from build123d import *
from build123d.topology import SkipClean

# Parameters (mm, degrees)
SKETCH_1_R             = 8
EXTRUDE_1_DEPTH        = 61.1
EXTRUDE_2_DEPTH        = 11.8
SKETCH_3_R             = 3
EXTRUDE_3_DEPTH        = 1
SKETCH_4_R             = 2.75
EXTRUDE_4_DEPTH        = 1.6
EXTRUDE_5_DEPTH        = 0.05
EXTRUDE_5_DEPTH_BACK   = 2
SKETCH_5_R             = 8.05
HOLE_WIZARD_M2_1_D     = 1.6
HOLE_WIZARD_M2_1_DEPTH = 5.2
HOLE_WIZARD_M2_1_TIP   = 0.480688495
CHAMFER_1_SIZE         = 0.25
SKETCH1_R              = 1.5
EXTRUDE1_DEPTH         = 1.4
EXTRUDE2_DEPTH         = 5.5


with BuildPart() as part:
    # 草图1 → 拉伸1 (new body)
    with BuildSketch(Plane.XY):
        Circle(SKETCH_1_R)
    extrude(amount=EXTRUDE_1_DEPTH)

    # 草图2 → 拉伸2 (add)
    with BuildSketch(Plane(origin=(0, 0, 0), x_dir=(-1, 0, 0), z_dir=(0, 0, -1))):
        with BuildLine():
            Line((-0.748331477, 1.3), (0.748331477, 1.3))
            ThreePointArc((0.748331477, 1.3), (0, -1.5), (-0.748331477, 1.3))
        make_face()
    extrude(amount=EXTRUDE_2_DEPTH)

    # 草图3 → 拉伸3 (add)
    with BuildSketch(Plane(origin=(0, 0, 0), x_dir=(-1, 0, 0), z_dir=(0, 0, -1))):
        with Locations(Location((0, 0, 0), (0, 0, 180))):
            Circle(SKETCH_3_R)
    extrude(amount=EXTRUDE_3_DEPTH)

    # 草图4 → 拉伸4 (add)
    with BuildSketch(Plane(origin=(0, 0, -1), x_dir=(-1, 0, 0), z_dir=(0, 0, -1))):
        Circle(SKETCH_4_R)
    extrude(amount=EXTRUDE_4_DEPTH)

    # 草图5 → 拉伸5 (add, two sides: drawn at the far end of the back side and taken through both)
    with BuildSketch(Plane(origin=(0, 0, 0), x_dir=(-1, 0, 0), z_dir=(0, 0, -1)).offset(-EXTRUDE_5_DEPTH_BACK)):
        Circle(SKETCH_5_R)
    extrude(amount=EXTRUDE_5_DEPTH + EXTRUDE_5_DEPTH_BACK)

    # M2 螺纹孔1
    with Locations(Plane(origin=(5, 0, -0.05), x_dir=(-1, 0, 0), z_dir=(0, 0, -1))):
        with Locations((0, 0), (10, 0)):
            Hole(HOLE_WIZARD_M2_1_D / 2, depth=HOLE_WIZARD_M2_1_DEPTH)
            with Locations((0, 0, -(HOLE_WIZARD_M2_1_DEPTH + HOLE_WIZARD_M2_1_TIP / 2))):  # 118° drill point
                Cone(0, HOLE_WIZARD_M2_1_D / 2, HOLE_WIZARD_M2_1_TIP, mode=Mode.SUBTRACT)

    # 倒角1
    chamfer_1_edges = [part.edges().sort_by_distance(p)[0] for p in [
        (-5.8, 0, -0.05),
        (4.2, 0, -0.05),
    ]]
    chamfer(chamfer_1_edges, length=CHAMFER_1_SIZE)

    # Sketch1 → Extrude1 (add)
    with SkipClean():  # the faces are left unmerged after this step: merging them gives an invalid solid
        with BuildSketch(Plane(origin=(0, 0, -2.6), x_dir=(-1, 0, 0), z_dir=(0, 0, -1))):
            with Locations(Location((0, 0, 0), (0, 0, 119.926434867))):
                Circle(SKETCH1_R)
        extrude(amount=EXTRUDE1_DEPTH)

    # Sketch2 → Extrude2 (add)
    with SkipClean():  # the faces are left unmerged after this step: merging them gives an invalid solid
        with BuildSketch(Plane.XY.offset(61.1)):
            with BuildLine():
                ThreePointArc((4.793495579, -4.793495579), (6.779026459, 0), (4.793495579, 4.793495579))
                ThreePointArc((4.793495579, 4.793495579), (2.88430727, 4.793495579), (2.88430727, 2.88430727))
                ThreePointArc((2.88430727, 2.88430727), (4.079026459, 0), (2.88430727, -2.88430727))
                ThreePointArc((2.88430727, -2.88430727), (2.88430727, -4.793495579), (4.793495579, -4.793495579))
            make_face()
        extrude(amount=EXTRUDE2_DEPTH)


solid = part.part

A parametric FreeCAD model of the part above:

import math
import FreeCAD as App
import Part
import Sketcher
from FreeCAD import Vector
Q = App.Units.Quantity


def edges_at(feature, points):
    """Names of the edges that pass closest to the given points."""
    edges = feature.Shape.Edges
    near = lambda p: min(range(len(edges)), key=lambda i: edges[i].distToShape(Part.Vertex(*p))[0])
    return sorted({f"Edge{near(p) + 1}" for p in points})

doc = App.newDocument("Part")
body = doc.addObject("PartDesign::Body", "Body")

# Sketch on XY plane
sketch1 = body.newObject("Sketcher::SketchObject", "Sketch")
sketch1.AttachmentSupport = (doc.getObject("XY_Plane"), [""])
sketch1.MapMode = "FlatFace"
sketch1.addGeometry(Part.Circle(Vector(0, 0, 0), Vector(0, 0, 1), 8), False)
sketch1.addConstraint([
    Sketcher.Constraint("Coincident", 0, 3, -1, 1),
    Sketcher.Constraint("Diameter", 0, Q("16 mm")),
])
pad1 = body.newObject("PartDesign::Pad", "Pad")
pad1.Profile = sketch1
pad1.Length = 61.1

# Sketch on XY plane
sketch2 = body.newObject("Sketcher::SketchObject", "Sketch001")
sketch2.AttachmentSupport = (doc.getObject("XY_Plane"), [""])
sketch2.MapMode = "FlatFace"
sketch2.addGeometry([
    Part.LineSegment(Vector(-0.7, 1.3, 0), Vector(0.7, 1.3, 0)),
    Part.ArcOfCircle(Part.Circle(Vector(0, 0, 0), Vector(0, 0, 1), 1.5), math.radians(120), math.radians(420)),
], False)
sketch2.addConstraint([
    Sketcher.Constraint("Coincident", 0, 1, 1, 1),
    Sketcher.Constraint("Coincident", 1, 2, 0, 2),
    Sketcher.Constraint("Horizontal", 0),
    Sketcher.Constraint("Coincident", 1, 3, -1, 1),
    Sketcher.Constraint("Radius", 1, Q("1.5 mm")),
    Sketcher.Constraint("DistanceY", -1, 1, 0, 1, Q("1.3 mm")),
])
pad2 = body.newObject("PartDesign::Pad", "Pad001")
pad2.Profile = sketch2
pad2.Length = 11.8
pad2.Reversed = True

# Sketch on XY plane
sketch3 = body.newObject("Sketcher::SketchObject", "Sketch002")
sketch3.AttachmentSupport = (doc.getObject("XY_Plane"), [""])
sketch3.MapMode = "FlatFace"
sketch3.addGeometry(Part.Circle(Vector(0, 0, 0), Vector(0, 0, 1), 3), False)
sketch3.addConstraint([
    Sketcher.Constraint("Coincident", 0, 3, -1, 1),
    Sketcher.Constraint("Diameter", 0, Q("6 mm")),
])
pad3 = body.newObject("PartDesign::Pad", "Pad002")
pad3.Profile = sketch3
pad3.Length = 1
pad3.Reversed = True

# Sketch on XY plane
sketch4 = body.newObject("Sketcher::SketchObject", "Sketch003")
sketch4.AttachmentSupport = (doc.getObject("XY_Plane"), [""])
sketch4.MapMode = "FlatFace"
sketch4.AttachmentOffset = App.Placement(Vector(0, 0, -1), App.Rotation())
sketch4.addGeometry(Part.Circle(Vector(0, 0, 0), Vector(0, 0, 1), 2.8), False)
sketch4.addConstraint([
    Sketcher.Constraint("Coincident", 0, 3, -1, 1),
    Sketcher.Constraint("Diameter", 0, Q("5.5 mm")),
])
pad4 = body.newObject("PartDesign::Pad", "Pad003")
pad4.Profile = sketch4
pad4.Length = 1.6
pad4.Reversed = True

# Sketch on XY plane
sketch5 = body.newObject("Sketcher::SketchObject", "Sketch004")
sketch5.AttachmentSupport = (doc.getObject("XY_Plane"), [""])
sketch5.MapMode = "FlatFace"
sketch5.addGeometry(Part.Circle(Vector(0, 0, 0), Vector(0, 0, 1), 8), False)
sketch5.addConstraint([
    Sketcher.Constraint("Coincident", 0, 3, -1, 1),
    Sketcher.Constraint("Diameter", 0, Q("16.1 mm")),
])
pad5 = body.newObject("PartDesign::Pad", "Pad004")
pad5.Profile = sketch5
pad5.Type = "TwoLengths"
pad5.Length = 0.05
pad5.Length2 = 2
pad5.Reversed = True

# Sketch on XY plane
sketch6 = body.newObject("Sketcher::SketchObject", "Sketch005")
sketch6.AttachmentSupport = (doc.getObject("XY_Plane"), [""])
sketch6.MapMode = "FlatFace"
sketch6.AttachmentOffset = App.Placement(Vector(0, 0, -0.05), App.Rotation())
sketch6.addGeometry([
    Part.Circle(Vector(5, 0, 0), Vector(0, 0, 1), 0.8),
    Part.Circle(Vector(-5, 0, 0), Vector(0, 0, 1), 0.8),
], False)
sketch6.addConstraint([
    Sketcher.Constraint("Equal", 0, 1),
    Sketcher.Constraint("Symmetric", 0, 3, 1, 3, -1, 1),
    Sketcher.Constraint("PointOnObject", 0, 3, -1),
    Sketcher.Constraint("Diameter", 0, Q("1.6 mm")),
    Sketcher.Constraint("DistanceX", -1, 1, 0, 3, Q("5 mm")),
])
doc.recompute()
hole = body.newObject("PartDesign::Hole", "Hole")
hole.Profile = sketch6
hole.ThreadType = "None"
hole.Diameter = 1.6
hole.DepthType = "Dimension"
hole.Depth = 5.2
hole.DrillPoint = "Angled"
hole.DrillPointAngle = 118
hole.Reversed = True
doc.recompute()

chamfer = body.newObject("PartDesign::Chamfer", "Chamfer")
chamfer.Base = (hole, edges_at(hole, [(-5.8, 0, -0.05), (4.2, 0, -0.05)]))
chamfer.Size = 0.25

# Sketch on XY plane
sketch7 = body.newObject("Sketcher::SketchObject", "Sketch006")
sketch7.AttachmentSupport = (doc.getObject("XY_Plane"), [""])
sketch7.MapMode = "FlatFace"
sketch7.AttachmentOffset = App.Placement(Vector(0, 0, -2.6), App.Rotation())
sketch7.addGeometry(Part.Circle(Vector(0, 0, 0), Vector(0, 0, 1), 1.5), False)
sketch7.addConstraint([
    Sketcher.Constraint("Coincident", 0, 3, -1, 1),
    Sketcher.Constraint("Diameter", 0, Q("3 mm")),
])
pad6 = body.newObject("PartDesign::Pad", "Pad005")
pad6.Profile = sketch7
pad6.Length = 1.4
pad6.Reversed = True

# Sketch on XY plane
sketch8 = body.newObject("Sketcher::SketchObject", "Sketch007")
sketch8.AttachmentSupport = (doc.getObject("XY_Plane"), [""])
sketch8.MapMode = "FlatFace"
sketch8.AttachmentOffset = App.Placement(Vector(0, 0, 61.1), App.Rotation())
sketch8.addGeometry([
    Part.ArcOfCircle(Part.Circle(Vector(0, 0, 0), Vector(0, 0, 1), 6.8), math.radians(-45), math.radians(45)),
    Part.ArcOfCircle(Part.Circle(Vector(3.8, 3.8, 0), Vector(0, 0, 1), 1.4), math.radians(45), math.radians(225)),
    Part.ArcOfCircle(Part.Circle(Vector(0, 0, 0), Vector(0, 0, 1), 4.1), math.radians(-45), math.radians(45)),
    Part.ArcOfCircle(Part.Circle(Vector(3.8, -3.8, 0), Vector(0, 0, 1), 1.4), math.radians(135), math.radians(315)),
], False)
sketch8.addConstraint([
    Sketcher.Constraint("Tangent", 0, 2, 1, 1),
    Sketcher.Constraint("Tangent", 1, 2, 2, 2),
    Sketcher.Constraint("Tangent", 2, 1, 3, 1),
    Sketcher.Constraint("Tangent", 3, 2, 0, 1),
    Sketcher.Constraint("Coincident", 0, 3, -1, 1),
    Sketcher.Constraint("Coincident", 2, 3, -1, 1),
    Sketcher.Constraint("Vertical", 1, 3, 3, 3),
    Sketcher.Constraint("Radius", 1, Q("1.35 mm")),
    Sketcher.Constraint("Radius", 0, Q("6.779026 mm")),
    Sketcher.Constraint("DistanceX", -1, 1, 1, 3, Q("3.838901 mm")),
])
pad7 = body.newObject("PartDesign::Pad", "Pad006")
pad7.Profile = sketch8
pad7.Length = 5.5

doc.recompute()
